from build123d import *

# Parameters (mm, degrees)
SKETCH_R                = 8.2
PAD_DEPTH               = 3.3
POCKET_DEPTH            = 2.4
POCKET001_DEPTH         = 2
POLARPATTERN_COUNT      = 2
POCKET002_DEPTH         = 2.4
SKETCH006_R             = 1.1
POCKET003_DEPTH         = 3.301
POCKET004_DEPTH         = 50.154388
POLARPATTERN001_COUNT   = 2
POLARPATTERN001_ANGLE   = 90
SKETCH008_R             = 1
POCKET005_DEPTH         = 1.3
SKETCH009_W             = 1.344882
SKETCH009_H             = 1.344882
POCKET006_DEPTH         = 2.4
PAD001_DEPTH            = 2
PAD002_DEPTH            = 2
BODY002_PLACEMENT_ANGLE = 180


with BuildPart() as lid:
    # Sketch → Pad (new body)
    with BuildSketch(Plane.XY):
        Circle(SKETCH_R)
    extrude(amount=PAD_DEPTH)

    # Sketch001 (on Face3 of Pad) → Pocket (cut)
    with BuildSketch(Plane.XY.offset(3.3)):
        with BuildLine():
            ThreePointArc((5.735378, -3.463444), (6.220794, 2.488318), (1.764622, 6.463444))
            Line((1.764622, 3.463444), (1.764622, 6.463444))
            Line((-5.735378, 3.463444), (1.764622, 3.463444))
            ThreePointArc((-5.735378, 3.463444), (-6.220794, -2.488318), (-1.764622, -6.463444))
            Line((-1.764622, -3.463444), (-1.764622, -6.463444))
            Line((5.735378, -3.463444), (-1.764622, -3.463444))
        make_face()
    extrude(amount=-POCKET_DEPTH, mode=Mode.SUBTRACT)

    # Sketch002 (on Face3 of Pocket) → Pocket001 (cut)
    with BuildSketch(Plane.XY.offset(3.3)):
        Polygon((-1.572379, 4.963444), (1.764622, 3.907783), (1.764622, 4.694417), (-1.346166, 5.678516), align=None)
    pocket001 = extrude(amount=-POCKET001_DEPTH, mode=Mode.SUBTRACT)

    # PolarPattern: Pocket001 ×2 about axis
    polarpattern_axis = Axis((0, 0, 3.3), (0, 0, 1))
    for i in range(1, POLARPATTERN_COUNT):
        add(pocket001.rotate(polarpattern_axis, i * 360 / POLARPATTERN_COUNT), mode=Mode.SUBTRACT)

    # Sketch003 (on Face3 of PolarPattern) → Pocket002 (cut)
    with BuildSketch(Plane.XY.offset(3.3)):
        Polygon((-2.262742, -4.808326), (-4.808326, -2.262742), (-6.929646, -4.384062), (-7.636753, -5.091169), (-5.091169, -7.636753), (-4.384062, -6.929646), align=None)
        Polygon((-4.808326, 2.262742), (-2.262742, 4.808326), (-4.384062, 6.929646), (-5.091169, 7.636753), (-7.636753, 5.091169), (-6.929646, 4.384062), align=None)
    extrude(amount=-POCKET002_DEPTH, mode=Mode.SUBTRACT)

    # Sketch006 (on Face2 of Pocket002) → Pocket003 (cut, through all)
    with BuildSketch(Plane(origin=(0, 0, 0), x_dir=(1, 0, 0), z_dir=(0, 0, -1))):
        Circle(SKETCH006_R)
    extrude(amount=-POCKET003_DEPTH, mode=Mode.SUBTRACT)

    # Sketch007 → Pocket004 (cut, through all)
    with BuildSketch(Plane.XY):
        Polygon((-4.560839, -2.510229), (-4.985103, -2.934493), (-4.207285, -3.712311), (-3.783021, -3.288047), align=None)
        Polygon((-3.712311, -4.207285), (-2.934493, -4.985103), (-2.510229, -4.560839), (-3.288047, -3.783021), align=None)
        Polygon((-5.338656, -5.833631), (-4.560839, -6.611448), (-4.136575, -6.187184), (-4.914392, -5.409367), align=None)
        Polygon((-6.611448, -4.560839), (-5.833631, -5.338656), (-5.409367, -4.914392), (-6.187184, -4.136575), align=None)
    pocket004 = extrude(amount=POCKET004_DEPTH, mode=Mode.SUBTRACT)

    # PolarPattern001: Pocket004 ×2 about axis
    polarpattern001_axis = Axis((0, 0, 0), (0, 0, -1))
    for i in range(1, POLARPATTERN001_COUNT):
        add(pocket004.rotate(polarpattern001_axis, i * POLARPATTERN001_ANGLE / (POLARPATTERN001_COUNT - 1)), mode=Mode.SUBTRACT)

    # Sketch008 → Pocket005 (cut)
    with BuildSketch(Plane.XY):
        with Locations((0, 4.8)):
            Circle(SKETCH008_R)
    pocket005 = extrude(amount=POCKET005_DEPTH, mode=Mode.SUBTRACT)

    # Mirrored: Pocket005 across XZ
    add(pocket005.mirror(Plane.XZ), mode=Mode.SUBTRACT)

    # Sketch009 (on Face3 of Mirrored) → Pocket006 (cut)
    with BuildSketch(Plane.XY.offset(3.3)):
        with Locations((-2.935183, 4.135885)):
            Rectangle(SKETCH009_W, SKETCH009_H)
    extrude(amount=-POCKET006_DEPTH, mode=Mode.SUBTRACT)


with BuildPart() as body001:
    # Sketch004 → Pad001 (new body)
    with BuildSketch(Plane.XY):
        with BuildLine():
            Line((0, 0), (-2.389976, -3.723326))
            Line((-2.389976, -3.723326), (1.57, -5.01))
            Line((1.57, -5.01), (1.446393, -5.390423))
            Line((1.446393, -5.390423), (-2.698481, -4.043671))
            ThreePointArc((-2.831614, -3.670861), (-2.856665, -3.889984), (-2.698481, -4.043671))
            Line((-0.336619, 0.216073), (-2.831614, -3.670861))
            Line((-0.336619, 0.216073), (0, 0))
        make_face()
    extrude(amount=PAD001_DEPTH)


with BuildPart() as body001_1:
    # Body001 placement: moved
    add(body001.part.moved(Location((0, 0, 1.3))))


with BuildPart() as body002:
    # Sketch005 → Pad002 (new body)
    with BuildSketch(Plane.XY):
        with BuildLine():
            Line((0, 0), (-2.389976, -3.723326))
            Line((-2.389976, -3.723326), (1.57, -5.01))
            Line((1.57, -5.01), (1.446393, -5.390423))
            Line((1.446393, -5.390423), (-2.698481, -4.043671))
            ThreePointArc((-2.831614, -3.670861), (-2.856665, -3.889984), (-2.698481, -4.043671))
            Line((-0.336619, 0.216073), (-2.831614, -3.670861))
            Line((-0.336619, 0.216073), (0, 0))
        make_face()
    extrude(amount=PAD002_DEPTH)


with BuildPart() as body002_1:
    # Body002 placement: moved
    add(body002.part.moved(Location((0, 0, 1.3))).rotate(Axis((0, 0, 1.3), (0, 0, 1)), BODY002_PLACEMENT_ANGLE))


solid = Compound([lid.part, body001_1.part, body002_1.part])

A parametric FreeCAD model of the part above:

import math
import FreeCAD as App
import Part
import Sketcher
from FreeCAD import Vector
Q = App.Units.Quantity

doc = App.newDocument("Part")
body = doc.addObject("PartDesign::Body", "Body")

# Sketch on XY plane
sketch1 = body.newObject("Sketcher::SketchObject", "Sketch")
sketch1.AttachmentSupport = (doc.getObject("XY_Plane"), [""])
sketch1.MapMode = "FlatFace"
sketch1.addGeometry(Part.Circle(Vector(0, 0, 0), Vector(0, 0, 1), 8), False)
sketch1.addConstraint([
    Sketcher.Constraint("Coincident", 0, 3, -1, 1),
    Sketcher.Constraint("Diameter", 0, Q("16.4 mm")),
])
pad1 = body.newObject("PartDesign::Pad", "Pad")
pad1.Profile = sketch1
pad1.Length = 3.3

# Sketch on XY plane
sketch2 = body.newObject("Sketcher::SketchObject", "Sketch001")
sketch2.AttachmentSupport = (doc.getObject("XY_Plane"), [""])
sketch2.MapMode = "FlatFace"
sketch2.AttachmentOffset = App.Placement(Vector(0, 0, 3.3), App.Rotation())
sketch2.addGeometry([
    Part.ArcOfCircle(Part.Circle(Vector(0, 0, 0), Vector(0, 0, 1), 6.7), math.radians(-31), math.radians(75)),  # 0
    Part.LineSegment(Vector(1.8, 6.5, 0), Vector(1.8, 3.5, 0)),  # 1
    Part.LineSegment(Vector(1.8, 3.5, 0), Vector(-5.7, 3.5, 0)),  # 2
    Part.ArcOfCircle(Part.Circle(Vector(0, 0, 0), Vector(0, 0, 1), 6.7), math.radians(149), math.radians(255)),  # 3
    Part.LineSegment(Vector(-1.8, -6.5, 0), Vector(-1.8, -3.5, 0)),  # 4
    Part.LineSegment(Vector(-1.8, -3.5, 0), Vector(5.7, -3.5, 0)),  # 5
], False)
sketch2.addConstraint([
    Sketcher.Constraint("Coincident", 0, 2, 1, 1),
    Sketcher.Constraint("Coincident", 1, 2, 2, 1),
    Sketcher.Constraint("Coincident", 2, 2, 3, 1),
    Sketcher.Constraint("Coincident", 3, 2, 4, 1),
    Sketcher.Constraint("Coincident", 4, 2, 5, 1),
    Sketcher.Constraint("Coincident", 5, 2, 0, 1),
    Sketcher.Constraint("Vertical", 1),
    Sketcher.Constraint("Horizontal", 2),
    Sketcher.Constraint("Vertical", 4),
    Sketcher.Constraint("Horizontal", 5),
    Sketcher.Constraint("Coincident", 0, 3, -1, 1),
    Sketcher.Constraint("Coincident", 3, 3, -1, 1),
    Sketcher.Constraint("Equal", 0, 3),
    Sketcher.Constraint("Symmetric", 1, 2, 4, 2, -1, 1),
    Sketcher.Constraint("Radius", 0, Q("6.7 mm")),
    Sketcher.Constraint("DistanceY", 1, 2, 1, 1, Q("3 mm")),
    Sketcher.Constraint("DistanceX", 2, 2, 2, 1, Q("7.5 mm")),
])
pocket1 = body.newObject("PartDesign::Pocket", "Pocket")
pocket1.Profile = sketch2
pocket1.Length = 2.4

# Sketch on XY plane
sketch3 = body.newObject("Sketcher::SketchObject", "Sketch002")
sketch3.AttachmentSupport = (doc.getObject("XY_Plane"), [""])
sketch3.MapMode = "FlatFace"
sketch3.AttachmentOffset = App.Placement(Vector(0, 0, 3.3), App.Rotation())
sketch3.addGeometry([
    Part.LineSegment(Vector(-1.6, 5, 0), Vector(1.8, 3.9, 0)),
    Part.LineSegment(Vector(1.8, 3.9, 0), Vector(1.8, 4.7, 0)),
    Part.LineSegment(Vector(1.8, 4.7, 0), Vector(-1.3, 5.7, 0)),
    Part.LineSegment(Vector(-1.3, 5.7, 0), Vector(-1.6, 5, 0)),
], False)
sketch3.addConstraint([
    Sketcher.Constraint("Coincident", 0, 2, 1, 1),
    Sketcher.Constraint("Coincident", 1, 2, 2, 1),
    Sketcher.Constraint("Coincident", 2, 2, 3, 1),
    Sketcher.Constraint("Coincident", 3, 2, 0, 1),
    Sketcher.Constraint("Vertical", 1),
    Sketcher.Constraint("Parallel", 0, 2),
    Sketcher.Constraint("Perpendicular", 2, 3),
    Sketcher.Constraint("Distance", 0, Q("3.499999 mm")),
    Sketcher.Constraint("Distance", 3, Q("0.75 mm")),
    Sketcher.Constraint("DistanceX", 3, 2, 1, 2, Q("3.337001 mm")),
    Sketcher.Constraint("DistanceX", -1, 1, 0, 2, Q("1.764622 mm")),
    Sketcher.Constraint("DistanceY", -1, 1, 0, 2, Q("3.907783 mm")),
])
pocket2 = body.newObject("PartDesign::Pocket", "Pocket001")
pocket2.Profile = sketch3
pocket2.Length = 2
doc.recompute()

polarpattern = body.newObject("PartDesign::PolarPattern", "PolarPattern")
polarpattern.Originals = [pocket2]
polarpattern.Axis = (doc.getObject("Z_Axis"), [""])
polarpattern.Angle = 360
polarpattern.Occurrences = 2
body.Tip = polarpattern

# Sketch on XY plane
sketch4 = body.newObject("Sketcher::SketchObject", "Sketch003")
sketch4.AttachmentSupport = (doc.getObject("XY_Plane"), [""])
sketch4.MapMode = "FlatFace"
sketch4.AttachmentOffset = App.Placement(Vector(0, 0, 3.3), App.Rotation())
sketch4.addGeometry([
    Part.LineSegment(Vector(-2.3, -4.8, 0), Vector(-4.8, -2.3, 0)),  # 0
    Part.LineSegment(Vector(-4.8, -2.3, 0), Vector(-7.6, -5.1, 0)),  # 1
    Part.LineSegment(Vector(-7.6, -5.1, 0), Vector(-5.1, -7.6, 0)),  # 2
    Part.LineSegment(Vector(-5.1, -7.6, 0), Vector(-2.3, -4.8, 0)),  # 3
    Part.LineSegment(Vector(-4.8, 2.3, 0), Vector(-2.3, 4.8, 0)),  # 4
    Part.LineSegment(Vector(-2.3, 4.8, 0), Vector(-5.1, 7.6, 0)),  # 5
    Part.LineSegment(Vector(-5.1, 7.6, 0), Vector(-7.6, 5.1, 0)),  # 6
    Part.LineSegment(Vector(-7.6, 5.1, 0), Vector(-4.8, 2.3, 0)),  # 7
], False)
sketch4.addConstraint([
    Sketcher.Constraint("Coincident", 0, 2, 1, 1),
    Sketcher.Constraint("Coincident", 1, 2, 2, 1),
    Sketcher.Constraint("Coincident", 2, 2, 3, 1),
    Sketcher.Constraint("Coincident", 3, 2, 0, 1),
    Sketcher.Constraint("Coincident", 4, 2, 5, 1),
    Sketcher.Constraint("Coincident", 5, 2, 6, 1),
    Sketcher.Constraint("Coincident", 6, 2, 7, 1),
    Sketcher.Constraint("Coincident", 7, 2, 4, 1),
    Sketcher.Constraint("Symmetric", 3, 2, 4, 2, -1),
    Sketcher.Constraint("Symmetric", 2, 2, 5, 2, -1),
    Sketcher.Constraint("Symmetric", 1, 2, 6, 2, -1),
    Sketcher.Constraint("Symmetric", 0, 2, 7, 2, -1),
    Sketcher.Constraint("Perpendicular", 0, 1),
    Sketcher.Constraint("Perpendicular", 1, 2),
    Sketcher.Constraint("Perpendicular", 2, 3),
    Sketcher.Constraint("Parallel", 3, 4),
    Sketcher.Constraint("Distance", 1, Q("4 mm")),
    Sketcher.Constraint("Distance", 0, Q("3.599999 mm")),
    Sketcher.Constraint("DistanceY", 0, 2, -1, 1, Q("2.262742 mm")),
    Sketcher.Constraint("DistanceX", 2, 2, -1, 1, Q("5.091169 mm")),
])
pocket3 = body.newObject("PartDesign::Pocket", "Pocket002")
pocket3.Profile = sketch4
pocket3.Length = 2.4

# Sketch on XY plane
sketch5 = body.newObject("Sketcher::SketchObject", "Sketch004")
sketch5.AttachmentSupport = (doc.getObject("XY_Plane"), [""])
sketch5.MapMode = "FlatFace"
sketch5.addGeometry(Part.Circle(Vector(0, 0, 0), Vector(0, 0, 1), 1.1), False)
sketch5.addConstraint([
    Sketcher.Constraint("Coincident", 0, 3, -1, 1),
    Sketcher.Constraint("Diameter", 0, Q("2.2 mm")),
])
pocket4 = body.newObject("PartDesign::Pocket", "Pocket003")
pocket4.Profile = sketch5
pocket4.Type = "ThroughAll"
pocket4.Reversed = True

# Sketch on XY plane
sketch6 = body.newObject("Sketcher::SketchObject", "Sketch005")
sketch6.AttachmentSupport = (doc.getObject("XY_Plane"), [""])
sketch6.MapMode = "FlatFace"
sketch6.addGeometry([
    Part.LineSegment(Vector(-4.6, -2.5, 0), Vector(-5, -2.9, 0)),  # 0
    Part.LineSegment(Vector(-5, -2.9, 0), Vector(-4.2, -3.7, 0)),  # 1
    Part.LineSegment(Vector(-4.2, -3.7, 0), Vector(-3.8, -3.3, 0)),  # 2
    Part.LineSegment(Vector(-3.8, -3.3, 0), Vector(-4.6, -2.5, 0)),  # 3
    Part.LineSegment(Vector(-3.7, -4.2, 0), Vector(-2.9, -5, 0)),  # 4
    Part.LineSegment(Vector(-2.9, -5, 0), Vector(-2.5, -4.6, 0)),  # 5
    Part.LineSegment(Vector(-2.5, -4.6, 0), Vector(-3.3, -3.8, 0)),  # 6
    Part.LineSegment(Vector(-3.3, -3.8, 0), Vector(-3.7, -4.2, 0)),  # 7
    Part.LineSegment(Vector(-5.3, -5.8, 0), Vector(-4.6, -6.6, 0)),  # 8
    Part.LineSegment(Vector(-4.6, -6.6, 0), Vector(-4.1, -6.2, 0)),  # 9
    Part.LineSegment(Vector(-4.1, -6.2, 0), Vector(-4.9, -5.4, 0)),  # 10
    Part.LineSegment(Vector(-4.9, -5.4, 0), Vector(-5.3, -5.8, 0)),  # 11
    Part.LineSegment(Vector(-6.6, -4.6, 0), Vector(-5.8, -5.3, 0)),  # 12
    Part.LineSegment(Vector(-5.8, -5.3, 0), Vector(-5.4, -4.9, 0)),  # 13
    Part.LineSegment(Vector(-5.4, -4.9, 0), Vector(-6.2, -4.1, 0)),  # 14
    Part.LineSegment(Vector(-6.2, -4.1, 0), Vector(-6.6, -4.6, 0)),  # 15
], False)
sketch6.addConstraint([
    Sketcher.Constraint("Coincident", 0, 2, 1, 1),
    Sketcher.Constraint("Coincident", 1, 2, 2, 1),
    Sketcher.Constraint("Coincident", 2, 2, 3, 1),
    Sketcher.Constraint("Coincident", 3, 2, 0, 1),
    Sketcher.Constraint("Coincident", 4, 2, 5, 1),
    Sketcher.Constraint("Coincident", 5, 2, 6, 1),
    Sketcher.Constraint("Coincident", 6, 2, 7, 1),
    Sketcher.Constraint("Coincident", 7, 2, 4, 1),
    Sketcher.Constraint("Coincident", 8, 2, 9, 1),
    Sketcher.Constraint("Coincident", 9, 2, 10, 1),
    Sketcher.Constraint("Coincident", 10, 2, 11, 1),
    Sketcher.Constraint("Coincident", 11, 2, 8, 1),
    Sketcher.Constraint("Coincident", 12, 2, 13, 1),
    Sketcher.Constraint("Coincident", 13, 2, 14, 1),
    Sketcher.Constraint("Coincident", 14, 2, 15, 1),
    Sketcher.Constraint("Coincident", 15, 2, 12, 1),
    Sketcher.Constraint("Perpendicular", 0, 1),
    Sketcher.Constraint("Perpendicular", 1, 2),
    Sketcher.Constraint("Perpendicular", 2, 3),
    Sketcher.Constraint("Parallel", 3, 4),
    Sketcher.Constraint("Perpendicular", 4, 5),
    Sketcher.Constraint("Perpendicular", 5, 6),
    Sketcher.Constraint("Perpendicular", 6, 7),
    Sketcher.Constraint("Perpendicular", 7, 8),
    Sketcher.Constraint("Perpendicular", 8, 9),
    Sketcher.Constraint("Perpendicular", 9, 10),
    Sketcher.Constraint("Perpendicular", 10, 11),
    Sketcher.Constraint("Perpendicular", 11, 12),
    Sketcher.Constraint("Perpendicular", 12, 13),
    Sketcher.Constraint("Perpendicular", 13, 14),
    Sketcher.Constraint("Perpendicular", 14, 15),
    Sketcher.Constraint("Horizontal", 5, 2, 15, 2),
    Sketcher.Constraint("Vertical", 3, 2, 8, 2),
    Sketcher.Constraint("Equal", 3, 4),
    Sketcher.Constraint("Equal", 2, 5),
    Sketcher.Constraint("Equal", 6, 8),
    Sketcher.Constraint("Equal", 7, 9),
    Sketcher.Constraint("Equal", 10, 12),
    Sketcher.Constraint("Equal", 11, 13),
    Sketcher.Constraint("Angle", 0, Q("-135 deg")),
    Sketcher.Constraint("Distance", 0, Q("0.6 mm")),
    Sketcher.Constraint("Distance", 1, Q("1.100001 mm")),
    Sketcher.Constraint("DistanceY", 9, 2, 7, 2, Q("1.979899 mm")),
    Sketcher.Constraint("DistanceX", 10, 2, 4, 2, Q("1.979899 mm")),
    Sketcher.Constraint("DistanceY", 1, 2, -1, 1, Q("3.712311 mm")),
    Sketcher.Constraint("DistanceX", 2, 2, -1, 1, Q("3.783021 mm")),
    Sketcher.Constraint("DistanceY", 5, 2, -1, 1, Q("4.560839 mm")),
    Sketcher.Constraint("DistanceX", 12, 2, -1, 1, Q("5.833631 mm")),
])
pocket5 = body.newObject("PartDesign::Pocket", "Pocket004")
pocket5.Profile = sketch6
pocket5.Type = "ThroughAll"
pocket5.Reversed = True
doc.recompute()

polarpattern2 = body.newObject("PartDesign::PolarPattern", "PolarPattern001")
polarpattern2.Originals = [pocket5]
polarpattern2.Axis = (doc.getObject("Z_Axis"), [""])
polarpattern2.Angle = 90
polarpattern2.Occurrences = 2
polarpattern2.Reversed = True
body.Tip = polarpattern2

# Sketch on XY plane
sketch7 = body.newObject("Sketcher::SketchObject", "Sketch006")
sketch7.AttachmentSupport = (doc.getObject("XY_Plane"), [""])
sketch7.MapMode = "FlatFace"
sketch7.addGeometry(Part.Circle(Vector(0, 4.8, 0), Vector(0, 0, 1), 1), False)
sketch7.addConstraint([
    Sketcher.Constraint("PointOnObject", 0, 3, -2),
    Sketcher.Constraint("Diameter", 0, Q("2 mm")),
    Sketcher.Constraint("DistanceY", -1, 1, 0, 3, Q("4.8 mm")),
])
pocket6 = body.newObject("PartDesign::Pocket", "Pocket005")
pocket6.Profile = sketch7
pocket6.Length = 1.3
pocket6.Reversed = True
doc.recompute()

mirrored = body.newObject("PartDesign::Mirrored", "Mirrored")
mirrored.Originals = [pocket6]
mirrored.MirrorPlane = (doc.getObject("XZ_Plane"), [""])
body.Tip = mirrored

# Sketch on XY plane
sketch8 = body.newObject("Sketcher::SketchObject", "Sketch007")
sketch8.AttachmentSupport = (doc.getObject("XY_Plane"), [""])
sketch8.MapMode = "FlatFace"
sketch8.AttachmentOffset = App.Placement(Vector(0, 0, 3.3), App.Rotation())
sketch8.addGeometry([
    Part.LineSegment(Vector(-3.6, 4.8, 0), Vector(-3.6, 3.5, 0)),
    Part.LineSegment(Vector(-3.6, 3.5, 0), Vector(-2.3, 3.5, 0)),
    Part.LineSegment(Vector(-2.3, 3.5, 0), Vector(-2.3, 4.8, 0)),
    Part.LineSegment(Vector(-2.3, 4.8, 0), Vector(-3.6, 4.8, 0)),
], False)
sketch8.addConstraint([
    Sketcher.Constraint("Coincident", 0, 2, 1, 1),
    Sketcher.Constraint("Coincident", 1, 2, 2, 1),
    Sketcher.Constraint("Coincident", 2, 2, 3, 1),
    Sketcher.Constraint("Coincident", 3, 2, 0, 1),
    Sketcher.Constraint("Vertical", 0),
    Sketcher.Constraint("Horizontal", 1),
    Sketcher.Constraint("Vertical", 2),
    Sketcher.Constraint("Horizontal", 3),
    Sketcher.Constraint("Equal", 3, 0),
    Sketcher.Constraint("DistanceX", 1, 1, 1, 2, Q("1.344882 mm")),
    Sketcher.Constraint("DistanceX", 1, 2, -1, 1, Q("2.262742 mm")),
    Sketcher.Constraint("DistanceY", -1, 1, 0, 2, Q("3.463444 mm")),
])
pocket7 = body.newObject("PartDesign::Pocket", "Pocket006")
pocket7.Profile = sketch8
pocket7.Length = 2.4
body2 = doc.addObject("PartDesign::Body", "Body001")

# Sketch on XY plane
sketch9 = body2.newObject("Sketcher::SketchObject", "Sketch008")
sketch9.AttachmentSupport = (doc.getObject("XY_Plane001"), [""])
sketch9.MapMode = "FlatFace"
sketch9.addGeometry([
    Part.LineSegment(Vector(-2.39, -3.72, 0), Vector(0, 0, 0)),  # 0
    Part.LineSegment(Vector(0, 0, 0), Vector(-0.34, 0.22, 0)),  # 1
    Part.LineSegment(Vector(-0.34, 0.22, 0), Vector(-2.83, -3.67, 0)),  # 2
    Part.ArcOfCircle(Part.Circle(Vector(-2.62, -3.81, 0), Vector(0, 0, 1), 0.25), math.radians(147), math.radians(252)),  # 3
    Part.LineSegment(Vector(-2.7, -4.04, 0), Vector(1.45, -5.39, 0)),  # 4
    Part.LineSegment(Vector(1.45, -5.39, 0), Vector(1.57, -5.01, 0)),  # 5
    Part.LineSegment(Vector(1.57, -5.01, 0), Vector(-2.39, -3.72, 0)),  # 6
], False)
sketch9.addConstraint([
    Sketcher.Constraint("Coincident", 0, 2, 1, 1),
    Sketcher.Constraint("Coincident", 1, 2, 2, 1),
    Sketcher.Constraint("Tangent", 2, 2, 3, 1),
    Sketcher.Constraint("Tangent", 3, 2, 4, 1),
    Sketcher.Constraint("Coincident", 4, 2, 5, 1),
    Sketcher.Constraint("Coincident", 5, 2, 6, 1),
    Sketcher.Constraint("Coincident", 6, 2, 0, 1),
    Sketcher.Constraint("Coincident", 0, 2, -1, 1),
    Sketcher.Constraint("Perpendicular", 0, 1),
    Sketcher.Constraint("Perpendicular", 1, 2),
    Sketcher.Constraint("Perpendicular", 4, 5),
    Sketcher.Constraint("Perpendicular", 5, 6),
    Sketcher.Constraint("Equal", 1, 5),
    Sketcher.Constraint("Angle", 4, Q("-18.00001 deg")),
    Sketcher.Constraint("Radius", 3, Q("0.25 mm")),
    Sketcher.Constraint("Distance", 1, Q("0.4 mm")),
    Sketcher.Constraint("DistanceX", -1, 1, 5, 2, Q("1.57 mm")),
    Sketcher.Constraint("DistanceY", 5, 2, -1, 1, Q("5.01 mm")),
    Sketcher.Constraint("Distance", 0, Q("4.42438 mm")),
])
pad2 = body2.newObject("PartDesign::Pad", "Pad001")
pad2.Profile = sketch9
pad2.Length = 2
body3 = doc.addObject("PartDesign::Body", "Body002")
doc.recompute()

body2.Placement = App.Placement(Vector(0, 0, 1.3), App.Rotation(Vector(0, 0, 1), 0))
boolean = body3.newObject("PartDesign::Boolean", "Boolean")
boolean.Type = "Fuse"
boolean.addObjects([body2])
body4 = doc.addObject("PartDesign::Body", "Body003")

# Sketch on XY plane
sketch10 = body4.newObject("Sketcher::SketchObject", "Sketch009")
sketch10.AttachmentSupport = (doc.getObject("XY_Plane003"), [""])
sketch10.MapMode = "FlatFace"
sketch10.addGeometry([
    Part.LineSegment(Vector(-2.39, -3.72, 0), Vector(0, 0, 0)),  # 0
    Part.LineSegment(Vector(0, 0, 0), Vector(-0.34, 0.22, 0)),  # 1
    Part.LineSegment(Vector(-0.34, 0.22, 0), Vector(-2.83, -3.67, 0)),  # 2
    Part.ArcOfCircle(Part.Circle(Vector(-2.62, -3.81, 0), Vector(0, 0, 1), 0.25), math.radians(147), math.radians(252)),  # 3
    Part.LineSegment(Vector(-2.7, -4.04, 0), Vector(1.45, -5.39, 0)),  # 4
    Part.LineSegment(Vector(1.45, -5.39, 0), Vector(1.57, -5.01, 0)),  # 5
    Part.LineSegment(Vector(1.57, -5.01, 0), Vector(-2.39, -3.72, 0)),  # 6
], False)
sketch10.addConstraint([
    Sketcher.Constraint("Coincident", 0, 2, 1, 1),
    Sketcher.Constraint("Coincident", 1, 2, 2, 1),
    Sketcher.Constraint("Tangent", 2, 2, 3, 1),
    Sketcher.Constraint("Tangent", 3, 2, 4, 1),
    Sketcher.Constraint("Coincident", 4, 2, 5, 1),
    Sketcher.Constraint("Coincident", 5, 2, 6, 1),
    Sketcher.Constraint("Coincident", 6, 2, 0, 1),
    Sketcher.Constraint("Coincident", 0, 2, -1, 1),
    Sketcher.Constraint("Perpendicular", 0, 1),
    Sketcher.Constraint("Perpendicular", 1, 2),
    Sketcher.Constraint("Perpendicular", 4, 5),
    Sketcher.Constraint("Perpendicular", 5, 6),
    Sketcher.Constraint("Equal", 1, 5),
    Sketcher.Constraint("Angle", 4, Q("-18.00001 deg")),
    Sketcher.Constraint("Radius", 3, Q("0.25 mm")),
    Sketcher.Constraint("Distance", 1, Q("0.4 mm")),
    Sketcher.Constraint("DistanceX", -1, 1, 5, 2, Q("1.57 mm")),
    Sketcher.Constraint("DistanceY", 5, 2, -1, 1, Q("5.01 mm")),
    Sketcher.Constraint("Distance", 0, Q("4.42438 mm")),
])
pad3 = body4.newObject("PartDesign::Pad", "Pad002")
pad3.Profile = sketch10
pad3.Length = 2
body5 = doc.addObject("PartDesign::Body", "Body004")
doc.recompute()

body4.Placement = App.Placement(Vector(0, 0, 1.3), App.Rotation(Vector(0, 0, 1), 180))
boolean2 = body5.newObject("PartDesign::Boolean", "Boolean001")
boolean2.Type = "Fuse"
boolean2.addObjects([body4])

doc.recompute()
